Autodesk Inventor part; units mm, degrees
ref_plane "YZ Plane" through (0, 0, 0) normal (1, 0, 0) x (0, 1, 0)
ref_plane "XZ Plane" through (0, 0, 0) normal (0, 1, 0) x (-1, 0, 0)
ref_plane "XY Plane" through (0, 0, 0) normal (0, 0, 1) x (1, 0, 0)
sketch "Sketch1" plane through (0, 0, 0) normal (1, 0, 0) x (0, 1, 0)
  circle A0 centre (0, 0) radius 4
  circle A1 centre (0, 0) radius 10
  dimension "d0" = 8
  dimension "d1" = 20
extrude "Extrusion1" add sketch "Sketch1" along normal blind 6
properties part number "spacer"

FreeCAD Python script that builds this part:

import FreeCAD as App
import Part
import Sketcher

V = App.Vector

doc = App.newDocument("Part")
body = doc.addObject("PartDesign::Body", "Body")

# Sketch on YZ plane
sketch1 = body.newObject("Sketcher::SketchObject", "Sketch")
sketch1.AttachmentSupport = (doc.getObject("YZ_Plane"), [""])
sketch1.MapMode = "FlatFace"
sketch1.addGeometry([
    Part.Circle(V(0, 0, 0), V(0, 0, 1), 10),
    Part.Circle(V(0, 0, 0), V(0, 0, 1), 4),
], False)
sketch1.addConstraint([
    Sketcher.Constraint("Coincident", 0, 3, -1, 1),
    Sketcher.Constraint("Coincident", 1, 3, -1, 1),
    Sketcher.Constraint("Diameter", 0, 20.0),
    Sketcher.Constraint("Diameter", 1, 8.0),
])
pad1 = body.newObject("PartDesign::Pad", "Pad")
pad1.Profile = sketch1
pad1.Length = 6

doc.recompute()
